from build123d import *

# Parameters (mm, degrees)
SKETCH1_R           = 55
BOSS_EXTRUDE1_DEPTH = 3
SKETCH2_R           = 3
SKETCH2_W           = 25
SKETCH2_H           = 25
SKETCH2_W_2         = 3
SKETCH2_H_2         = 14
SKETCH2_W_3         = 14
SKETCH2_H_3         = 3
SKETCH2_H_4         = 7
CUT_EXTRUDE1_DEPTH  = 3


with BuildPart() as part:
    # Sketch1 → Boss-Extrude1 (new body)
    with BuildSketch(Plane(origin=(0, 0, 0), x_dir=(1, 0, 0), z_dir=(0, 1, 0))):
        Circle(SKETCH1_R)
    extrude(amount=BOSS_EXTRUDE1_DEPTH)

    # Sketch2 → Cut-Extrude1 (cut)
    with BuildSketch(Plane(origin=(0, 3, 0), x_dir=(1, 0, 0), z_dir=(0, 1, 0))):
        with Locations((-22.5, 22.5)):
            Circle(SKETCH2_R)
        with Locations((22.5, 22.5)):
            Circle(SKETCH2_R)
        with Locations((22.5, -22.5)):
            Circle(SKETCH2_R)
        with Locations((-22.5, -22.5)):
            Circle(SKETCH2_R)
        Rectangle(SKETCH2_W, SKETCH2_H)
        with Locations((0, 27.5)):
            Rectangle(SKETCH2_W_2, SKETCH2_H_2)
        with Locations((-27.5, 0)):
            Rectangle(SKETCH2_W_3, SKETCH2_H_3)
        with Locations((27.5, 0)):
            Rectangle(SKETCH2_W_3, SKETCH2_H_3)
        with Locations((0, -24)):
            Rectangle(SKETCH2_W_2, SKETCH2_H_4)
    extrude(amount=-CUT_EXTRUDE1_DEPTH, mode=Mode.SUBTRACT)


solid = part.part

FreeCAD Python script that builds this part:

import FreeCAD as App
import Part
import Sketcher

V = App.Vector
Q = App.Units.Quantity


def add_polygon(sketch, points):
    """Adds a closed chain of lines whose ends are joined by coincident constraints."""
    first, n = sketch.GeometryCount, len(points)
    for a, b in zip(points, points[1:] + points[:1]):
        sketch.addGeometry(Part.LineSegment(App.Vector(*a, 0), App.Vector(*b, 0)), False)
    for i in range(n):
        sketch.addConstraint(Sketcher.Constraint("Coincident", first + i, 2, first + (i + 1) % n, 1))

doc = App.newDocument("Part")
body = doc.addObject("PartDesign::Body", "Body")

sketch1 = body.newObject("Sketcher::SketchObject", "Sketch")
sketch1.AttachmentSupport = (doc.getObject("XZ_Plane"), [""])
sketch1.MapMode = "FlatFace"
sketch1.addGeometry(Part.Circle(V(0, 0, 0), V(0, 0, 1), 55), False)
sketch1.addConstraint(Sketcher.Constraint("Coincident", 0, 3, -1, 1))
sketch1.addConstraint(Sketcher.Constraint("Diameter", 0, Q("110 mm")))
pad1 = body.newObject("PartDesign::Pad", "Pad")
pad1.Profile = sketch1
pad1.Length = 3
pad1.Reversed = True

sketch2 = body.newObject("Sketcher::SketchObject", "Sketch001")
sketch2.AttachmentSupport = (doc.getObject("XZ_Plane"), [""])
sketch2.MapMode = "FlatFace"
sketch2.AttachmentOffset = App.Placement(V(0, 0, -3), App.Rotation())
sketch2.addGeometry(Part.Circle(V(-22.5, -22.5, 0), V(0, 0, 1), 3), False)
sketch2.addGeometry(Part.Circle(V(22.5, -22.5, 0), V(0, 0, 1), 3), False)
sketch2.addGeometry(Part.Circle(V(22.5, 22.5, 0), V(0, 0, 1), 3), False)
sketch2.addGeometry(Part.Circle(V(-22.5, 22.5, 0), V(0, 0, 1), 3), False)
add_polygon(sketch2, [(-12.5, -12.5), (-12.5, 12.5), (12.5, 12.5), (12.5, -12.5)])
add_polygon(sketch2, [(-1.5, -34.5), (-1.5, -20.5), (1.5, -20.5), (1.5, -34.5)])
add_polygon(sketch2, [(-34.5, -1.5), (-34.5, 1.5), (-20.5, 1.5), (-20.5, -1.5)])
add_polygon(sketch2, [(20.5, -1.5), (20.5, 1.5), (34.5, 1.5), (34.5, -1.5)])
add_polygon(sketch2, [(-1.5, 20.5), (-1.5, 27.5), (1.5, 27.5), (1.5, 20.5)])
sketch2.addConstraint(Sketcher.Constraint("Vertical", 4))
sketch2.addConstraint(Sketcher.Constraint("Horizontal", 5))
sketch2.addConstraint(Sketcher.Constraint("Vertical", 6))
sketch2.addConstraint(Sketcher.Constraint("Horizontal", 7))
sketch2.addConstraint(Sketcher.Constraint("Vertical", 8))
sketch2.addConstraint(Sketcher.Constraint("Horizontal", 9))
sketch2.addConstraint(Sketcher.Constraint("Vertical", 10))
sketch2.addConstraint(Sketcher.Constraint("Horizontal", 11))
sketch2.addConstraint(Sketcher.Constraint("Vertical", 12))
sketch2.addConstraint(Sketcher.Constraint("Horizontal", 13))
sketch2.addConstraint(Sketcher.Constraint("Vertical", 14))
sketch2.addConstraint(Sketcher.Constraint("Horizontal", 15))
sketch2.addConstraint(Sketcher.Constraint("Vertical", 16))
sketch2.addConstraint(Sketcher.Constraint("Horizontal", 17))
sketch2.addConstraint(Sketcher.Constraint("Vertical", 18))
sketch2.addConstraint(Sketcher.Constraint("Horizontal", 19))
sketch2.addConstraint(Sketcher.Constraint("Vertical", 20))
sketch2.addConstraint(Sketcher.Constraint("Horizontal", 21))
sketch2.addConstraint(Sketcher.Constraint("Vertical", 22))
sketch2.addConstraint(Sketcher.Constraint("Horizontal", 23))
sketch2.addConstraint(Sketcher.Constraint("Equal", 0, 1))
sketch2.addConstraint(Sketcher.Constraint("Equal", 1, 2))
sketch2.addConstraint(Sketcher.Constraint("Equal", 2, 3))
sketch2.addConstraint(Sketcher.Constraint("Symmetric", 0, 3, 2, 3, -1, 1))
sketch2.addConstraint(Sketcher.Constraint("Symmetric", 1, 3, 3, 3, -1, 1))
sketch2.addConstraint(Sketcher.Constraint("Symmetric", 4, 2, 6, 2, -1, 1))
sketch2.addConstraint(Sketcher.Constraint("Symmetric", 14, 2, 16, 2, -1, 1))
sketch2.addConstraint(Sketcher.Constraint("Symmetric", 12, 2, 18, 2, -1, 1))
sketch2.addConstraint(Sketcher.Constraint("Symmetric", 8, 2, 22, 2, -1, 1))
sketch2.addConstraint(Sketcher.Constraint("Symmetric", 0, 3, 1, 3, -2))
sketch2.addConstraint(Sketcher.Constraint("Horizontal", 13, 2, 16, 2))
sketch2.addConstraint(Sketcher.Constraint("Vertical", 11, 2, 20, 2))
sketch2.addConstraint(Sketcher.Constraint("Vertical", 10, 2, 21, 2))
sketch2.addConstraint(Sketcher.Constraint("Equal", 7, 4))
sketch2.addConstraint(Sketcher.Constraint("Equal", 19, 8))
sketch2.addConstraint(Sketcher.Constraint("Equal", 23, 12))
sketch2.addConstraint(Sketcher.Constraint("Diameter", 0, Q("6 mm")))
sketch2.addConstraint(Sketcher.Constraint("DistanceX", 5, 1, 5, 2, Q("25 mm")))
sketch2.addConstraint(Sketcher.Constraint("DistanceX", 9, 1, 9, 2, Q("3 mm")))
sketch2.addConstraint(Sketcher.Constraint("DistanceX", 13, 1, 13, 2, Q("14 mm")))
sketch2.addConstraint(Sketcher.Constraint("DistanceY", 20, 1, 20, 2, Q("7 mm")))
sketch2.addConstraint(Sketcher.Constraint("DistanceX", 0, 3, 1, 3, Q("45 mm")))
sketch2.addConstraint(Sketcher.Constraint("DistanceY", 1, 3, 2, 3, Q("45 mm")))
sketch2.addConstraint(Sketcher.Constraint("DistanceY", 8, 2, 7, 2, Q("8 mm")))
sketch2.addConstraint(Sketcher.Constraint("DistanceX", 12, 2, 3, 3, Q("12 mm")))
pocket1 = body.newObject("PartDesign::Pocket", "Pocket")
pocket1.Profile = sketch2
pocket1.Length = 3
pocket1.Reversed = True

doc.recompute()
